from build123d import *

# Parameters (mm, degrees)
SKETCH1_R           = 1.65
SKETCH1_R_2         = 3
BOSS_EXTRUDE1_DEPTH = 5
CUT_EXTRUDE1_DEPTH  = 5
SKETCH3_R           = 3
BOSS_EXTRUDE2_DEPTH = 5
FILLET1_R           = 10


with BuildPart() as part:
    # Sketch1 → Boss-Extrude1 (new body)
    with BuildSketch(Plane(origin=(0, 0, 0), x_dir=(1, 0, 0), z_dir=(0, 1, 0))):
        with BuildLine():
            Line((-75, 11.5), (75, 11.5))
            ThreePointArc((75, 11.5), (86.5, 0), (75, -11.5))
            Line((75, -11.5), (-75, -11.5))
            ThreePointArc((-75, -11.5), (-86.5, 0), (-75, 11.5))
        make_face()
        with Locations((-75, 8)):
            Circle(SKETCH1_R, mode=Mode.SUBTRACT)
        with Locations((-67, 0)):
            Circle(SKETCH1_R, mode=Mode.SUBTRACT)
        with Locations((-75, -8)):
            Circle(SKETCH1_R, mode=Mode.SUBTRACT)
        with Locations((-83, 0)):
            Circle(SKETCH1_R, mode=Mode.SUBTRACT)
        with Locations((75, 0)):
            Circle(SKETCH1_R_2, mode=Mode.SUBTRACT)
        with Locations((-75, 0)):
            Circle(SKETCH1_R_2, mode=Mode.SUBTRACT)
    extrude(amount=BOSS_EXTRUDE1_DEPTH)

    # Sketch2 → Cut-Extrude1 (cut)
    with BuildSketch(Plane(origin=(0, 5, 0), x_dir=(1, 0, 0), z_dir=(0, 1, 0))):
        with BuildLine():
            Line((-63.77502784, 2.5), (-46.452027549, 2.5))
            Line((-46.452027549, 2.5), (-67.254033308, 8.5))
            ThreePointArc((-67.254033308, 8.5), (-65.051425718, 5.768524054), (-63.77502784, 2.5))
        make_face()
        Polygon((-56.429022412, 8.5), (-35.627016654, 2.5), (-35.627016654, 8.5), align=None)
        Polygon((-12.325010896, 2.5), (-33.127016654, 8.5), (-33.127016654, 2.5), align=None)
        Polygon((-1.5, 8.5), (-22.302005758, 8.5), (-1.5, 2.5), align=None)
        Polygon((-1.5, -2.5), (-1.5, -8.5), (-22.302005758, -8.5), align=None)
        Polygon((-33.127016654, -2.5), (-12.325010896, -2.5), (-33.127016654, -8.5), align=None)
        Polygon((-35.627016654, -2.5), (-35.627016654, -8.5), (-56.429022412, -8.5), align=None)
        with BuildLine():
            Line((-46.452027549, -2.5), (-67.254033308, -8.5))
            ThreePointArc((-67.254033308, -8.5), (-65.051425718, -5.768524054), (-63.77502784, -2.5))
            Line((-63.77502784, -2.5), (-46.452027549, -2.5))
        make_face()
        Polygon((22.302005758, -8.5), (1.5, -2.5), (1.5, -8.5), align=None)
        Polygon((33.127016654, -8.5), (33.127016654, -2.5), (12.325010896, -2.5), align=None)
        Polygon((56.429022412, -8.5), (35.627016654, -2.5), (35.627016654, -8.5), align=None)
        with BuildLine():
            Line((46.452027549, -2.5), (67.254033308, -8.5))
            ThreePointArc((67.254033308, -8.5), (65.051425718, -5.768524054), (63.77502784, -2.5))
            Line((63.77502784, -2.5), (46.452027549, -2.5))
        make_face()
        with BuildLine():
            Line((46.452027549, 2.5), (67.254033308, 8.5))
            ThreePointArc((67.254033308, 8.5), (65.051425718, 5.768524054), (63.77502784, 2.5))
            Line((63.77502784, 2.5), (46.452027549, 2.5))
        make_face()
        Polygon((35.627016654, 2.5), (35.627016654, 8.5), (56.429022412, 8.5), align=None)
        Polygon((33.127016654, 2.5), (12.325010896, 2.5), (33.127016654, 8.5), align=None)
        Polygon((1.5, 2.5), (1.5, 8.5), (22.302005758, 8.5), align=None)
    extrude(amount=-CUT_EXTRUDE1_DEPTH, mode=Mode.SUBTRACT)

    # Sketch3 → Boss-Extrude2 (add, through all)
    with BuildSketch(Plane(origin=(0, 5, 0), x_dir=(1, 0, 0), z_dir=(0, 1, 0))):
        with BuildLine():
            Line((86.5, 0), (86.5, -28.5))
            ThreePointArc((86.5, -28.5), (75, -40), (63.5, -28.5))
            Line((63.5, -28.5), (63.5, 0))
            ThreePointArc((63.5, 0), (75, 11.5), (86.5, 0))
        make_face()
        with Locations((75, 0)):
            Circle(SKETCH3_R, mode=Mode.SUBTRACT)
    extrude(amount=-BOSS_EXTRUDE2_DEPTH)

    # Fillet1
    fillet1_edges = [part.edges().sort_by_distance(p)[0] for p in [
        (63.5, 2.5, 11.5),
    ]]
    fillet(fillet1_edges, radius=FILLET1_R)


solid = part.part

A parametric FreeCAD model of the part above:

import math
import FreeCAD as App
import Part
import Sketcher
Q = App.Units.Quantity


def edges_at(feature, points):
    """Names of the edges that pass closest to the given points."""
    edges = feature.Shape.Edges
    near = lambda p: min(range(len(edges)), key=lambda i: edges[i].distToShape(Part.Vertex(*p))[0])
    return sorted({f"Edge{near(p) + 1}" for p in points})


def add_polygon(sketch, points):
    """Adds a closed chain of lines whose ends are joined by coincident constraints."""
    first, n = sketch.GeometryCount, len(points)
    for a, b in zip(points, points[1:] + points[:1]):
        sketch.addGeometry(Part.LineSegment(App.Vector(*a, 0), App.Vector(*b, 0)), False)
    for i in range(n):
        sketch.addConstraint(Sketcher.Constraint("Coincident", first + i, 2, first + (i + 1) % n, 1))

doc = App.newDocument("Part")
body = doc.addObject("PartDesign::Body", "Body")

# Sketch on XZ plane
sketch1 = doc.addObject("Sketcher::SketchObject", "Sketch")
body.addObject(sketch1)
sketch1.AttachmentSupport = (doc.XZ_Plane, [""])
sketch1.MapMode = "FlatFace"
sketch1.addGeometry([
    Part.LineSegment(App.Vector(75, -11.5, 0), App.Vector(-75, -11.5, 0)),  # 0
    Part.ArcOfCircle(Part.Circle(App.Vector(-75, 0, 0), App.Vector(0, 0, 1), 11.5), math.radians(90), math.radians(270)),  # 1
    Part.LineSegment(App.Vector(-75, 11.5, 0), App.Vector(75, 11.5, 0)),  # 2
    Part.ArcOfCircle(Part.Circle(App.Vector(75, 0, 0), App.Vector(0, 0, 1), 11.5), math.radians(-90), math.radians(90)),  # 3
    Part.Circle(App.Vector(-75, 8, 0), App.Vector(0, 0, 1), 1.6),  # 4
    Part.Circle(App.Vector(75, 0, 0), App.Vector(0, 0, 1), 3),  # 5
    Part.Circle(App.Vector(-67, 0, 0), App.Vector(0, 0, 1), 1.6),  # 6
    Part.Circle(App.Vector(-75, 0, 0), App.Vector(0, 0, 1), 3),  # 7
    Part.Circle(App.Vector(-83, 0, 0), App.Vector(0, 0, 1), 1.6),  # 8
    Part.Circle(App.Vector(-75, -8, 0), App.Vector(0, 0, 1), 1.6),  # 9
], False)
sketch1.addConstraint([
    Sketcher.Constraint("Tangent", 0, 2, 1, 2),
    Sketcher.Constraint("Tangent", 1, 1, 2, 1),
    Sketcher.Constraint("Tangent", 2, 2, 3, 2),
    Sketcher.Constraint("Tangent", 3, 1, 0, 1),
    Sketcher.Constraint("Horizontal", 0),
    Sketcher.Constraint("Horizontal", 2),
    Sketcher.Constraint("Coincident", 5, 3, 3, 3),
    Sketcher.Constraint("Coincident", 7, 3, 1, 3),
    Sketcher.Constraint("Equal", 4, 6),
    Sketcher.Constraint("Equal", 5, 7),
    Sketcher.Constraint("Equal", 6, 8),
    Sketcher.Constraint("Equal", 8, 9),
    Sketcher.Constraint("Symmetric", 1, 3, 3, 3, -1, 1),
    Sketcher.Constraint("Symmetric", 4, 3, 9, 3, -1),
    Sketcher.Constraint("PointOnObject", 6, 3, -1),
    Sketcher.Constraint("PointOnObject", 8, 3, -1),
    Sketcher.Constraint("Vertical", 1, 3, 4, 3),
    Sketcher.Constraint("Diameter", 5, Q("6 mm")),
    Sketcher.Constraint("Diameter", 4, Q("3.3 mm")),
    Sketcher.Constraint("Radius", 1, Q("11.5 mm")),
    Sketcher.Constraint("DistanceX", 0, 2, 0, 1, Q("150 mm")),
    Sketcher.Constraint("DistanceY", -1, 1, 4, 3, Q("8 mm")),
    Sketcher.Constraint("DistanceX", 6, 3, -1, 1, Q("67 mm")),
    Sketcher.Constraint("DistanceX", 8, 3, -1, 1, Q("83 mm")),
])
pad1 = doc.addObject("PartDesign::Pad", "Pad")
body.addObject(pad1)
pad1.Profile = sketch1
pad1.Length = 5
pad1.Reversed = True

# Sketch on XZ plane
sketch2 = doc.addObject("Sketcher::SketchObject", "Sketch001")
body.addObject(sketch2)
sketch2.AttachmentSupport = (doc.XZ_Plane, [""])
sketch2.MapMode = "FlatFace"
sketch2.AttachmentOffset = App.Placement(App.Vector(0, 0, -5), App.Rotation())
sketch2.addGeometry(Part.LineSegment(App.Vector(-64, -2, 0), App.Vector(-46, -2, 0)), False)  # 0
sketch2.addGeometry(Part.LineSegment(App.Vector(-46, -2, 0), App.Vector(-67, -8, 0)), False)  # 1
sketch2.addGeometry(Part.ArcOfCircle(Part.Circle(App.Vector(-75, 0, 0), App.Vector(0, 0, 1), 11), math.radians(-48), math.radians(-13)), False)  # 2
add_polygon(sketch2, [(-56, -8), (-36, -2), (-36, -8)])  # lines 3-5
add_polygon(sketch2, [(-12, -2), (-33, -8), (-33, -2)])  # lines 6-8
add_polygon(sketch2, [(-2, -8), (-22, -8), (-2, -2)])  # lines 9-11
add_polygon(sketch2, [(-2, 8), (-2, 2), (-22, 8)])  # lines 12-14
add_polygon(sketch2, [(-12, 2), (-33, 2), (-33, 8)])  # lines 15-17
add_polygon(sketch2, [(-36, 8), (-36, 2), (-56, 8)])  # lines 18-20
sketch2.addGeometry(Part.LineSegment(App.Vector(-67, 8, 0), App.Vector(-46, 2, 0)), False)  # 21
sketch2.addGeometry(Part.LineSegment(App.Vector(-46, 2, 0), App.Vector(-64, 2, 0)), False)  # 22
sketch2.addGeometry(Part.ArcOfCircle(Part.Circle(App.Vector(-75, 0, 0), App.Vector(0, 0, 1), 11), math.radians(13), math.radians(48)), False)  # 23
add_polygon(sketch2, [(22, 8), (2, 2), (2, 8)])  # lines 24-26
add_polygon(sketch2, [(33, 8), (33, 2), (12, 2)])  # lines 27-29
add_polygon(sketch2, [(56, 8), (36, 2), (36, 8)])  # lines 30-32
sketch2.addGeometry(Part.LineSegment(App.Vector(46, 2, 0), App.Vector(67, 8, 0)), False)  # 33
sketch2.addGeometry(Part.ArcOfCircle(Part.Circle(App.Vector(75, 0, 0), App.Vector(0, 0, 1), 11), math.radians(132), math.radians(167)), False)  # 34
sketch2.addGeometry(Part.LineSegment(App.Vector(64, 2, 0), App.Vector(46, 2, 0)), False)  # 35
sketch2.addGeometry(Part.LineSegment(App.Vector(67, -8, 0), App.Vector(46, -2, 0)), False)  # 36
sketch2.addGeometry(Part.LineSegment(App.Vector(46, -2, 0), App.Vector(64, -2, 0)), False)  # 37
sketch2.addGeometry(Part.ArcOfCircle(Part.Circle(App.Vector(75, 0, 0), App.Vector(0, 0, 1), 11), math.radians(-167), math.radians(-132)), False)  # 38
add_polygon(sketch2, [(36, -8), (36, -2), (56, -8)])  # lines 39-41
add_polygon(sketch2, [(12, -2), (33, -2), (33, -8)])  # lines 42-44
add_polygon(sketch2, [(2, -8), (2, -2), (22, -8)])  # lines 45-47
sketch2.addConstraint([
    Sketcher.Constraint("Coincident", 0, 2, 1, 1),
    Sketcher.Constraint("Coincident", 1, 2, 2, 1),
    Sketcher.Constraint("Coincident", 2, 2, 0, 1),
    Sketcher.Constraint("Coincident", 21, 2, 22, 1),
    Sketcher.Constraint("Coincident", 22, 2, 23, 1),
    Sketcher.Constraint("Coincident", 23, 2, 21, 1),
    Sketcher.Constraint("Coincident", 33, 2, 34, 1),
    Sketcher.Constraint("Coincident", 34, 2, 35, 1),
    Sketcher.Constraint("Coincident", 35, 2, 33, 1),
    Sketcher.Constraint("Coincident", 36, 2, 37, 1),
    Sketcher.Constraint("Coincident", 37, 2, 38, 1),
    Sketcher.Constraint("Coincident", 38, 2, 36, 1),
    Sketcher.Constraint("Horizontal", 0),
    Sketcher.Constraint("Vertical", 4),
    Sketcher.Constraint("Horizontal", 5),
    Sketcher.Constraint("Vertical", 7),
    Sketcher.Constraint("Horizontal", 8),
    Sketcher.Constraint("Horizontal", 9),
    Sketcher.Constraint("Vertical", 11),
    Sketcher.Constraint("Vertical", 12),
    Sketcher.Constraint("Horizontal", 14),
    Sketcher.Constraint("Horizontal", 15),
    Sketcher.Constraint("Vertical", 16),
    Sketcher.Constraint("Vertical", 18),
    Sketcher.Constraint("Horizontal", 20),
    Sketcher.Constraint("Horizontal", 22),
    Sketcher.Constraint("Vertical", 25),
    Sketcher.Constraint("Horizontal", 26),
    Sketcher.Constraint("Vertical", 27),
    Sketcher.Constraint("Horizontal", 28),
    Sketcher.Constraint("Vertical", 31),
    Sketcher.Constraint("Horizontal", 32),
    Sketcher.Constraint("Horizontal", 35),
    Sketcher.Constraint("Horizontal", 37),
    Sketcher.Constraint("Vertical", 39),
    Sketcher.Constraint("Horizontal", 41),
    Sketcher.Constraint("Horizontal", 42),
    Sketcher.Constraint("Vertical", 43),
    Sketcher.Constraint("Vertical", 45),
    Sketcher.Constraint("Horizontal", 47),
    Sketcher.Constraint("Coincident", 23, 3, 2, 3),
    Sketcher.Constraint("Coincident", 38, 3, 34, 3),
    Sketcher.Constraint("Equal", 2, 23),
    Sketcher.Constraint("Equal", 23, 34),
    Sketcher.Constraint("Equal", 34, 38),
    Sketcher.Constraint("Symmetric", 2, 3, 34, 3, -1, 1),
    Sketcher.Constraint("Symmetric", 10, 2, 24, 2, -1, 1),
    Sketcher.Constraint("Symmetric", 9, 2, 26, 2, -1, 1),
    Sketcher.Constraint("Symmetric", 7, 2, 27, 2, -1, 1),
    Sketcher.Constraint("Symmetric", 3, 2, 30, 2, -1, 1),
    Sketcher.Constraint("Symmetric", 5, 2, 32, 2, -1, 1),
    Sketcher.Constraint("Symmetric", 0, 2, 35, 2, -1, 1),
    Sketcher.Constraint("Symmetric", 21, 2, 36, 2, -1, 1),
    Sketcher.Constraint("Symmetric", 18, 2, 39, 2, -1, 1),
    Sketcher.Constraint("Symmetric", 19, 2, 40, 2, -1, 1),
    Sketcher.Constraint("Symmetric", 15, 2, 42, 2, -1, 1),
    Sketcher.Constraint("Symmetric", 12, 2, 45, 2, -1, 1),
    Sketcher.Constraint("Symmetric", 13, 2, 46, 2, -1, 1),
    Sketcher.Constraint("Symmetric", 12, 2, 24, 2, -2),
    Sketcher.Constraint("Symmetric", 13, 2, 26, 2, -2),
    Sketcher.Constraint("Symmetric", 15, 2, 27, 2, -2),
    Sketcher.Constraint("Symmetric", 18, 2, 30, 2, -2),
    Sketcher.Constraint("Symmetric", 19, 2, 32, 2, -2),
    Sketcher.Constraint("Symmetric", 23, 2, 33, 2, -2),
    Sketcher.Constraint("Symmetric", 21, 2, 35, 2, -2),
    Sketcher.Constraint("Parallel", 1, 3),
    Sketcher.Constraint("Parallel", 3, 6),
    Sketcher.Constraint("Parallel", 6, 10),
    Sketcher.Constraint("Parallel", 13, 17),
    Sketcher.Constraint("Parallel", 19, 21),
    Sketcher.Constraint("Parallel", 24, 29),
    Sketcher.Constraint("Parallel", 21, 36),
    Sketcher.Constraint("Parallel", 40, 44),
    Sketcher.Constraint("Horizontal", 2, 2, 3, 2),
    Sketcher.Constraint("Horizontal", 1, 2, 4, 2),
    Sketcher.Constraint("Horizontal", 5, 2, 6, 2),
    Sketcher.Constraint("Horizontal", 3, 2, 7, 2),
    Sketcher.Constraint("Horizontal", 6, 2, 9, 2),
    Sketcher.Constraint("Horizontal", 8, 2, 10, 2),
    Sketcher.Constraint("Horizontal", 14, 2, 16, 2),
    Sketcher.Constraint("Horizontal", 26, 2, 29, 2),
    Sketcher.Constraint("Horizontal", 41, 2, 43, 2),
    Sketcher.Constraint("Radius", 2, Q("11.5 mm")),
    Sketcher.Constraint("DistanceY", 4, 2, 4, 1, Q("6 mm")),
    Sketcher.Constraint("DistanceX", 2, 3, -1, 1, Q("75 mm")),
    Sketcher.Constraint("DistanceY", 10, 2, 12, 2, Q("5 mm")),
    Sketcher.Constraint("DistanceX", 12, 2, 24, 2, Q("3 mm")),
    Sketcher.Constraint("DistanceX", 4, 2, 6, 2, Q("2.5 mm")),
    Sketcher.Constraint("DistanceX", 0, 1, 0, 2, Q("17.323 mm")),
    Sketcher.Constraint("DistanceX", 8, 2, -1, 1, Q("12.325011 mm")),
])
pocket1 = doc.addObject("PartDesign::Pocket", "Pocket")
body.addObject(pocket1)
pocket1.Profile = sketch2
pocket1.Length = 5
pocket1.Reversed = True

# Sketch on XZ plane
sketch3 = doc.addObject("Sketcher::SketchObject", "Sketch002")
body.addObject(sketch3)
sketch3.AttachmentSupport = (doc.XZ_Plane, [""])
sketch3.MapMode = "FlatFace"
sketch3.AttachmentOffset = App.Placement(App.Vector(0, 0, -5), App.Rotation())
sketch3.addGeometry([
    Part.LineSegment(App.Vector(86.5, 28.5, 0), App.Vector(86.5, 0, 0)),  # 0
    Part.ArcOfCircle(Part.Circle(App.Vector(75, 0, 0), App.Vector(0, 0, 1), 11.5), math.radians(180), math.radians(360)),  # 1
    Part.LineSegment(App.Vector(63.5, 0, 0), App.Vector(63.5, 28.5, 0)),  # 2
    Part.ArcOfCircle(Part.Circle(App.Vector(75, 28.5, 0), App.Vector(0, 0, 1), 11.5), math.radians(0), math.radians(180)),  # 3
    Part.Circle(App.Vector(75, 0, 0), App.Vector(0, 0, 1), 3),  # 4
], False)
sketch3.addConstraint([
    Sketcher.Constraint("Tangent", 0, 2, 1, 2),
    Sketcher.Constraint("Tangent", 1, 1, 2, 1),
    Sketcher.Constraint("Tangent", 2, 2, 3, 2),
    Sketcher.Constraint("Tangent", 3, 1, 0, 1),
    Sketcher.Constraint("Vertical", 0),
    Sketcher.Constraint("Vertical", 2),
    Sketcher.Constraint("Coincident", 4, 3, 1, 3),
    Sketcher.Constraint("PointOnObject", 1, 3, -1),
    Sketcher.Constraint("Diameter", 4, Q("6 mm")),
    Sketcher.Constraint("Radius", 1, Q("11.5 mm")),
    Sketcher.Constraint("DistanceY", 0, 2, 0, 1, Q("28.5 mm")),
    Sketcher.Constraint("DistanceX", -1, 1, 1, 3, Q("75 mm")),
])
pad2 = doc.addObject("PartDesign::Pad", "Pad001")
body.addObject(pad2)
pad2.Profile = sketch3
pad2.Length = 5
doc.recompute()

fillet = doc.addObject("PartDesign::Fillet", "Fillet")
body.addObject(fillet)
fillet.Base = (pad2, edges_at(pad2, [(63.5, 2.5, 11.5)]))
fillet.Radius = 10

doc.recompute()
